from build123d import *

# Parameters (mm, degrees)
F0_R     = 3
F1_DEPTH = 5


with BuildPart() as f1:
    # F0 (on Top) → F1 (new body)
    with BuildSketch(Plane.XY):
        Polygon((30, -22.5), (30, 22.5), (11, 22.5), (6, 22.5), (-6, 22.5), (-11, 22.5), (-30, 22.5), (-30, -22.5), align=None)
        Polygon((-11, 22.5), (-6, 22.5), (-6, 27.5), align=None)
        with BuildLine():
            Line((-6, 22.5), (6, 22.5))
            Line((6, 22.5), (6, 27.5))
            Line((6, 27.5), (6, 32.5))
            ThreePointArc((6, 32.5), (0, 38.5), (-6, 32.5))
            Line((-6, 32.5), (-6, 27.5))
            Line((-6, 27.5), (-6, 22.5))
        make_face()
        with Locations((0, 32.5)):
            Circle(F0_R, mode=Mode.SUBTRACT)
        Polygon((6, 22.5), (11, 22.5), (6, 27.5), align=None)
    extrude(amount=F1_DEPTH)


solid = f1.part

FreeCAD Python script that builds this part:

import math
import FreeCAD as App
import Part
import Sketcher
from FreeCAD import Vector

doc = App.newDocument("Part")
body = doc.addObject("PartDesign::Body", "Body")

sketch1 = doc.addObject("Sketcher::SketchObject", "Sketch")
body.addObject(sketch1)
sketch1.AttachmentSupport = (doc.XY_Plane, [""])
sketch1.MapMode = "FlatFace"
sketch1.addGeometry(Part.LineSegment(Vector(30, -22.5, 0), Vector(30, 22.5, 0)), False)
sketch1.addGeometry(Part.LineSegment(Vector(30, 22.5, 0), Vector(11, 22.5, 0)), False)
sketch1.addGeometry(Part.LineSegment(Vector(11, 22.5, 0), Vector(6, 27.5, 0)), False)
sketch1.addGeometry(Part.LineSegment(Vector(6, 27.5, 0), Vector(6, 32.5, 0)), False)
sketch1.addGeometry(Part.ArcOfCircle(Part.Circle(Vector(0, 32.5, 0), Vector(0, 0, 1), 6), math.radians(0), math.radians(180)), False)
sketch1.addGeometry(Part.LineSegment(Vector(-6, 32.5, 0), Vector(-6, 27.5, 0)), False)
sketch1.addGeometry(Part.LineSegment(Vector(-6, 27.5, 0), Vector(-11, 22.5, 0)), False)
sketch1.addGeometry(Part.LineSegment(Vector(-11, 22.5, 0), Vector(-30, 22.5, 0)), False)
sketch1.addGeometry(Part.LineSegment(Vector(-30, 22.5, 0), Vector(-30, -22.5, 0)), False)
sketch1.addGeometry(Part.LineSegment(Vector(-30, -22.5, 0), Vector(30, -22.5, 0)), False)
sketch1.addGeometry(Part.Circle(Vector(0, 32.5, 0), Vector(0, 0, 1), 3), False)
sketch1.addConstraint(Sketcher.Constraint("Coincident", 0, 2, 1, 1))
sketch1.addConstraint(Sketcher.Constraint("Coincident", 1, 2, 2, 1))
sketch1.addConstraint(Sketcher.Constraint("Coincident", 2, 2, 3, 1))
sketch1.addConstraint(Sketcher.Constraint("Tangent", 3, 2, 4, 1))
sketch1.addConstraint(Sketcher.Constraint("Tangent", 4, 2, 5, 1))
sketch1.addConstraint(Sketcher.Constraint("Coincident", 5, 2, 6, 1))
sketch1.addConstraint(Sketcher.Constraint("Coincident", 6, 2, 7, 1))
sketch1.addConstraint(Sketcher.Constraint("Coincident", 7, 2, 8, 1))
sketch1.addConstraint(Sketcher.Constraint("Coincident", 8, 2, 9, 1))
sketch1.addConstraint(Sketcher.Constraint("Coincident", 9, 2, 0, 1))
sketch1.addConstraint(Sketcher.Constraint("Vertical", 0))
sketch1.addConstraint(Sketcher.Constraint("Horizontal", 1))
sketch1.addConstraint(Sketcher.Constraint("Vertical", 3))
sketch1.addConstraint(Sketcher.Constraint("Vertical", 5))
sketch1.addConstraint(Sketcher.Constraint("Horizontal", 7))
sketch1.addConstraint(Sketcher.Constraint("Vertical", 8))
sketch1.addConstraint(Sketcher.Constraint("Horizontal", 9))
sketch1.addConstraint(Sketcher.Constraint("Coincident", 10, 3, 4, 3))
sketch1.addConstraint(Sketcher.Constraint("Symmetric", 0, 2, 8, 2, -1, 1))
sketch1.addConstraint(Sketcher.Constraint("Symmetric", 2, 2, 5, 2, -2))
sketch1.addConstraint(Sketcher.Constraint("Symmetric", 1, 2, 6, 2, -2))
sketch1.addConstraint(Sketcher.Constraint("Perpendicular", 2, 6))
sketch1.addConstraint(Sketcher.Constraint("Diameter", 10, 6.0))
sketch1.addConstraint(Sketcher.Constraint("Radius", 4, 6.0))
sketch1.addConstraint(Sketcher.Constraint("DistanceX", 1, 2, 1, 1, 19.0))
sketch1.addConstraint(Sketcher.Constraint("DistanceX", 9, 1, 9, 2, 60.0))
sketch1.addConstraint(Sketcher.Constraint("DistanceY", 0, 1, 0, 2, 45.0))
sketch1.addConstraint(Sketcher.Constraint("DistanceY", 3, 1, 3, 2, 5.0))
pad1 = doc.addObject("PartDesign::Pad", "Pad")
body.addObject(pad1)
pad1.Profile = sketch1
pad1.Length = 5

doc.recompute()
